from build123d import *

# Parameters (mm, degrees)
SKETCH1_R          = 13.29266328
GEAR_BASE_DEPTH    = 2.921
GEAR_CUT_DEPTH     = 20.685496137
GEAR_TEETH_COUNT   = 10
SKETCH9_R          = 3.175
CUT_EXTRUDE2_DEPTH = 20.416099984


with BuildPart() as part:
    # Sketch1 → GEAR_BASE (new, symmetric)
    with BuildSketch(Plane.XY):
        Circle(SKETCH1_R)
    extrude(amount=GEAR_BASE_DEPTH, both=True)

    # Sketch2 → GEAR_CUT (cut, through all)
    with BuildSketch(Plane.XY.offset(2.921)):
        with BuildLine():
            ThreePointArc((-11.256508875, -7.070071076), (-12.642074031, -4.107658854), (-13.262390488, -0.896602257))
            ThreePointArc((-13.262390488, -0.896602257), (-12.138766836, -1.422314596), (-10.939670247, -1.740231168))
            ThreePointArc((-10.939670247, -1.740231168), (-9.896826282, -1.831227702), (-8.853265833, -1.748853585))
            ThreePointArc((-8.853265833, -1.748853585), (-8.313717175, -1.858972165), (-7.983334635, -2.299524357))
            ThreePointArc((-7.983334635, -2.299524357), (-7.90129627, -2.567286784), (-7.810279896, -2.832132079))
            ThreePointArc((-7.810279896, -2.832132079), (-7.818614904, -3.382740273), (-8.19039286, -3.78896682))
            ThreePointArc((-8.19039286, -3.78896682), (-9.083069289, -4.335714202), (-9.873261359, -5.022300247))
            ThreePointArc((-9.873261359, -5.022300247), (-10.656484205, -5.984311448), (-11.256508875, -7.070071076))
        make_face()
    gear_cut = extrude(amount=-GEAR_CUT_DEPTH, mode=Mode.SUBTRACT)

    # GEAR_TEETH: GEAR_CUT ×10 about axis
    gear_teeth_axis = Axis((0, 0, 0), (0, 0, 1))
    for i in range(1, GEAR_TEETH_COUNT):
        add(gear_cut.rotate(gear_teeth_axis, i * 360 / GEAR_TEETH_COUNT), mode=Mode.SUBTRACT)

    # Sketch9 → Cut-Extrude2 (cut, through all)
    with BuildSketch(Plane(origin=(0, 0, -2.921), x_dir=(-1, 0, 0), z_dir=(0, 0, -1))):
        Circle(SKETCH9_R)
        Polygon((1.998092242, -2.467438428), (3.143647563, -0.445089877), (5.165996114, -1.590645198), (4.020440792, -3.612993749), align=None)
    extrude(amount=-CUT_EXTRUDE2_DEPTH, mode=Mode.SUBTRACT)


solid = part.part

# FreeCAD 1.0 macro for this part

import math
import FreeCAD as App
import Part
import Sketcher
from FreeCAD import Vector
Q = App.Units.Quantity

doc = App.newDocument("Part")
body = doc.addObject("PartDesign::Body", "Body")

# Sketch on XY plane
sketch1 = body.newObject("Sketcher::SketchObject", "Sketch")
sketch1.AttachmentSupport = (doc.getObject("XY_Plane"), [""])
sketch1.MapMode = "FlatFace"
sketch1.addGeometry(Part.Circle(Vector(0, 0, 0), Vector(0, 0, 1), 13.292663), False)
sketch1.addConstraint([
    Sketcher.Constraint("Coincident", 0, 3, -1, 1),
    Sketcher.Constraint("Diameter", 0, 26.585327),
])
pad1 = body.newObject("PartDesign::Pad", "Pad")
pad1.Profile = sketch1
pad1.Length = Q("0.23 in")
pad1.Midplane = True

# Sketch on XY plane
sketch2 = body.newObject("Sketcher::SketchObject", "Sketch001")
sketch2.AttachmentSupport = (doc.getObject("XY_Plane"), [""])
sketch2.MapMode = "FlatFace"
sketch2.AttachmentOffset = App.Placement(Vector(0, 0, 0.115 * 25.4), App.Rotation())
sketch2.addGeometry([
    Part.ArcOfCircle(Part.Circle(Vector(0, 0, 0), Vector(0, 0, 1), 13.292663), math.radians(-176.132411), math.radians(-147.867589)),  # 0
    Part.ArcOfCircle(Part.Circle(Vector(-4.88824, -9.880699, 0), Vector(0, 0, 1), 6.960925), math.radians(135.736991), math.radians(156.185789)),  # 1
    Part.ArcOfCircle(Part.Circle(Vector(-5.346854, -9.433734, 0), Vector(0, 0, 1), 6.320531), math.radians(116.736575), math.radians(135.736991)),  # 2
    Part.ArcOfCircle(Part.Circle(Vector(-8.539239, -3.096464, 0), Vector(0, 0, 1), 0.775405), math.radians(-63.263425), math.radians(19.931452)),  # 3
    Part.ArcOfCircle(Part.Circle(Vector(-0.000001, 0, 0), Vector(0, 0, 1), 8.307913), math.radians(-163.931453), math.radians(-160.068547)),  # 4
    Part.ArcOfCircle(Part.Circle(Vector(-8.728446, -2.514147, 0), Vector(0, 0, 1), 0.775405), math.radians(16.068548), math.radians(99.263425)),  # 5
    Part.ArcOfCircle(Part.Circle(Vector(-9.870706, 4.489249, 0), Vector(0, 0, 1), 6.320531), math.radians(-99.736991), math.radians(-80.736575)),  # 6
    Part.ArcOfCircle(Part.Circle(Vector(-9.762399, 5.120418, 0), Vector(0, 0, 1), 6.960925), math.radians(-120.185789), math.radians(-99.736991)),  # 7
], False)
sketch2.addConstraint([
    Sketcher.Constraint("Coincident", 0, 2, 1, 2),
    Sketcher.Constraint("Tangent", 1, 1, 2, 2),
    Sketcher.Constraint("Tangent", 2, 1, 3, 1),
    Sketcher.Constraint("Tangent", 3, 2, 4, 2),
    Sketcher.Constraint("Tangent", 4, 1, 5, 1),
    Sketcher.Constraint("Tangent", 5, 2, 6, 2),
    Sketcher.Constraint("Tangent", 6, 1, 7, 2),
    Sketcher.Constraint("Coincident", 7, 1, 0, 1),
    Sketcher.Constraint("Coincident", 0, 3, -1, 1),
    Sketcher.Constraint("Coincident", 4, 3, -1, 1),
    Sketcher.Constraint("Equal", 3, 5),
    Sketcher.Constraint("Equal", 2, 6),
    Sketcher.Constraint("Equal", 1, 7),
    Sketcher.Constraint("Radius", 2, 6.320531),
    Sketcher.Constraint("Radius", 0, 13.292663),
    Sketcher.Constraint("Radius", 1, 6.960925),
    Sketcher.Constraint("Radius", 3, 0.775405),
    Sketcher.Constraint("Radius", 4, 8.307913),
    Sketcher.Constraint("DistanceY", 1, 3, -1, 1, 9.880699),
    Sketcher.Constraint("DistanceX", 7, 3, -1, 1, 9.762399),
    Sketcher.Constraint("DistanceY", 1, 1, -1, 1, 5.0223),
    Sketcher.Constraint("DistanceX", 3, 3, 1, 3, 3.650999),
    Sketcher.Constraint("DistanceY", 3, 2, 6, 1, 1.091901),
    Sketcher.Constraint("DistanceY", -1, 1, 6, 3, 4.489249),
])
pocket1 = body.newObject("PartDesign::Pocket", "Pocket")
pocket1.Profile = sketch2
pocket1.Type = "ThroughAll"
doc.recompute()

polarpattern = body.newObject("PartDesign::PolarPattern", "PolarPattern")
polarpattern.Originals = [pocket1]
polarpattern.Axis = (doc.getObject("Z_Axis"), [""])
polarpattern.Angle = 360
polarpattern.Occurrences = 10
body.Tip = polarpattern

# Sketch on XY plane
sketch3 = body.newObject("Sketcher::SketchObject", "Sketch002")
sketch3.AttachmentSupport = (doc.getObject("XY_Plane"), [""])
sketch3.MapMode = "FlatFace"
sketch3.AttachmentOffset = App.Placement(Vector(0, 0, -0.115 * 25.4), App.Rotation())
sketch3.addGeometry([
    Part.ArcOfCircle(Part.Circle(Vector(0, 0, 0), Vector(0, 0, 1), 3.175), math.radians(-129), math.radians(188.058597)),
    Part.LineSegment(Vector(-1.998092, -2.467438, 0), Vector(-4.020441, -3.612994, 0)),
    Part.LineSegment(Vector(-4.020441, -3.612994, 0), Vector(-5.165996, -1.590645, 0)),
    Part.LineSegment(Vector(-5.165996, -1.590645, 0), Vector(-3.143648, -0.44509, 0)),
], False)
sketch3.addConstraint([
    Sketcher.Constraint("Coincident", 0, 1, 1, 1),
    Sketcher.Constraint("Coincident", 1, 2, 2, 1),
    Sketcher.Constraint("Coincident", 2, 2, 3, 1),
    Sketcher.Constraint("Coincident", 3, 2, 0, 2),
    Sketcher.Constraint("Coincident", 0, 3, -1, 1),
    Sketcher.Constraint("Perpendicular", 1, 2),
    Sketcher.Constraint("Perpendicular", 2, 3),
    Sketcher.Constraint("Equal", 1, 2),
    Sketcher.Constraint("Equal", 2, 3),
    Sketcher.Constraint("Radius", 0, Q("0.125 in")),
    Sketcher.Constraint("Distance", 1, 2.324261),
    Sketcher.Constraint("DistanceY", 0, 1, -1, 1, 2.467438),
])
pocket2 = body.newObject("PartDesign::Pocket", "Pocket001")
pocket2.Profile = sketch3
pocket2.Type = "ThroughAll"
pocket2.Reversed = True

doc.recompute()
